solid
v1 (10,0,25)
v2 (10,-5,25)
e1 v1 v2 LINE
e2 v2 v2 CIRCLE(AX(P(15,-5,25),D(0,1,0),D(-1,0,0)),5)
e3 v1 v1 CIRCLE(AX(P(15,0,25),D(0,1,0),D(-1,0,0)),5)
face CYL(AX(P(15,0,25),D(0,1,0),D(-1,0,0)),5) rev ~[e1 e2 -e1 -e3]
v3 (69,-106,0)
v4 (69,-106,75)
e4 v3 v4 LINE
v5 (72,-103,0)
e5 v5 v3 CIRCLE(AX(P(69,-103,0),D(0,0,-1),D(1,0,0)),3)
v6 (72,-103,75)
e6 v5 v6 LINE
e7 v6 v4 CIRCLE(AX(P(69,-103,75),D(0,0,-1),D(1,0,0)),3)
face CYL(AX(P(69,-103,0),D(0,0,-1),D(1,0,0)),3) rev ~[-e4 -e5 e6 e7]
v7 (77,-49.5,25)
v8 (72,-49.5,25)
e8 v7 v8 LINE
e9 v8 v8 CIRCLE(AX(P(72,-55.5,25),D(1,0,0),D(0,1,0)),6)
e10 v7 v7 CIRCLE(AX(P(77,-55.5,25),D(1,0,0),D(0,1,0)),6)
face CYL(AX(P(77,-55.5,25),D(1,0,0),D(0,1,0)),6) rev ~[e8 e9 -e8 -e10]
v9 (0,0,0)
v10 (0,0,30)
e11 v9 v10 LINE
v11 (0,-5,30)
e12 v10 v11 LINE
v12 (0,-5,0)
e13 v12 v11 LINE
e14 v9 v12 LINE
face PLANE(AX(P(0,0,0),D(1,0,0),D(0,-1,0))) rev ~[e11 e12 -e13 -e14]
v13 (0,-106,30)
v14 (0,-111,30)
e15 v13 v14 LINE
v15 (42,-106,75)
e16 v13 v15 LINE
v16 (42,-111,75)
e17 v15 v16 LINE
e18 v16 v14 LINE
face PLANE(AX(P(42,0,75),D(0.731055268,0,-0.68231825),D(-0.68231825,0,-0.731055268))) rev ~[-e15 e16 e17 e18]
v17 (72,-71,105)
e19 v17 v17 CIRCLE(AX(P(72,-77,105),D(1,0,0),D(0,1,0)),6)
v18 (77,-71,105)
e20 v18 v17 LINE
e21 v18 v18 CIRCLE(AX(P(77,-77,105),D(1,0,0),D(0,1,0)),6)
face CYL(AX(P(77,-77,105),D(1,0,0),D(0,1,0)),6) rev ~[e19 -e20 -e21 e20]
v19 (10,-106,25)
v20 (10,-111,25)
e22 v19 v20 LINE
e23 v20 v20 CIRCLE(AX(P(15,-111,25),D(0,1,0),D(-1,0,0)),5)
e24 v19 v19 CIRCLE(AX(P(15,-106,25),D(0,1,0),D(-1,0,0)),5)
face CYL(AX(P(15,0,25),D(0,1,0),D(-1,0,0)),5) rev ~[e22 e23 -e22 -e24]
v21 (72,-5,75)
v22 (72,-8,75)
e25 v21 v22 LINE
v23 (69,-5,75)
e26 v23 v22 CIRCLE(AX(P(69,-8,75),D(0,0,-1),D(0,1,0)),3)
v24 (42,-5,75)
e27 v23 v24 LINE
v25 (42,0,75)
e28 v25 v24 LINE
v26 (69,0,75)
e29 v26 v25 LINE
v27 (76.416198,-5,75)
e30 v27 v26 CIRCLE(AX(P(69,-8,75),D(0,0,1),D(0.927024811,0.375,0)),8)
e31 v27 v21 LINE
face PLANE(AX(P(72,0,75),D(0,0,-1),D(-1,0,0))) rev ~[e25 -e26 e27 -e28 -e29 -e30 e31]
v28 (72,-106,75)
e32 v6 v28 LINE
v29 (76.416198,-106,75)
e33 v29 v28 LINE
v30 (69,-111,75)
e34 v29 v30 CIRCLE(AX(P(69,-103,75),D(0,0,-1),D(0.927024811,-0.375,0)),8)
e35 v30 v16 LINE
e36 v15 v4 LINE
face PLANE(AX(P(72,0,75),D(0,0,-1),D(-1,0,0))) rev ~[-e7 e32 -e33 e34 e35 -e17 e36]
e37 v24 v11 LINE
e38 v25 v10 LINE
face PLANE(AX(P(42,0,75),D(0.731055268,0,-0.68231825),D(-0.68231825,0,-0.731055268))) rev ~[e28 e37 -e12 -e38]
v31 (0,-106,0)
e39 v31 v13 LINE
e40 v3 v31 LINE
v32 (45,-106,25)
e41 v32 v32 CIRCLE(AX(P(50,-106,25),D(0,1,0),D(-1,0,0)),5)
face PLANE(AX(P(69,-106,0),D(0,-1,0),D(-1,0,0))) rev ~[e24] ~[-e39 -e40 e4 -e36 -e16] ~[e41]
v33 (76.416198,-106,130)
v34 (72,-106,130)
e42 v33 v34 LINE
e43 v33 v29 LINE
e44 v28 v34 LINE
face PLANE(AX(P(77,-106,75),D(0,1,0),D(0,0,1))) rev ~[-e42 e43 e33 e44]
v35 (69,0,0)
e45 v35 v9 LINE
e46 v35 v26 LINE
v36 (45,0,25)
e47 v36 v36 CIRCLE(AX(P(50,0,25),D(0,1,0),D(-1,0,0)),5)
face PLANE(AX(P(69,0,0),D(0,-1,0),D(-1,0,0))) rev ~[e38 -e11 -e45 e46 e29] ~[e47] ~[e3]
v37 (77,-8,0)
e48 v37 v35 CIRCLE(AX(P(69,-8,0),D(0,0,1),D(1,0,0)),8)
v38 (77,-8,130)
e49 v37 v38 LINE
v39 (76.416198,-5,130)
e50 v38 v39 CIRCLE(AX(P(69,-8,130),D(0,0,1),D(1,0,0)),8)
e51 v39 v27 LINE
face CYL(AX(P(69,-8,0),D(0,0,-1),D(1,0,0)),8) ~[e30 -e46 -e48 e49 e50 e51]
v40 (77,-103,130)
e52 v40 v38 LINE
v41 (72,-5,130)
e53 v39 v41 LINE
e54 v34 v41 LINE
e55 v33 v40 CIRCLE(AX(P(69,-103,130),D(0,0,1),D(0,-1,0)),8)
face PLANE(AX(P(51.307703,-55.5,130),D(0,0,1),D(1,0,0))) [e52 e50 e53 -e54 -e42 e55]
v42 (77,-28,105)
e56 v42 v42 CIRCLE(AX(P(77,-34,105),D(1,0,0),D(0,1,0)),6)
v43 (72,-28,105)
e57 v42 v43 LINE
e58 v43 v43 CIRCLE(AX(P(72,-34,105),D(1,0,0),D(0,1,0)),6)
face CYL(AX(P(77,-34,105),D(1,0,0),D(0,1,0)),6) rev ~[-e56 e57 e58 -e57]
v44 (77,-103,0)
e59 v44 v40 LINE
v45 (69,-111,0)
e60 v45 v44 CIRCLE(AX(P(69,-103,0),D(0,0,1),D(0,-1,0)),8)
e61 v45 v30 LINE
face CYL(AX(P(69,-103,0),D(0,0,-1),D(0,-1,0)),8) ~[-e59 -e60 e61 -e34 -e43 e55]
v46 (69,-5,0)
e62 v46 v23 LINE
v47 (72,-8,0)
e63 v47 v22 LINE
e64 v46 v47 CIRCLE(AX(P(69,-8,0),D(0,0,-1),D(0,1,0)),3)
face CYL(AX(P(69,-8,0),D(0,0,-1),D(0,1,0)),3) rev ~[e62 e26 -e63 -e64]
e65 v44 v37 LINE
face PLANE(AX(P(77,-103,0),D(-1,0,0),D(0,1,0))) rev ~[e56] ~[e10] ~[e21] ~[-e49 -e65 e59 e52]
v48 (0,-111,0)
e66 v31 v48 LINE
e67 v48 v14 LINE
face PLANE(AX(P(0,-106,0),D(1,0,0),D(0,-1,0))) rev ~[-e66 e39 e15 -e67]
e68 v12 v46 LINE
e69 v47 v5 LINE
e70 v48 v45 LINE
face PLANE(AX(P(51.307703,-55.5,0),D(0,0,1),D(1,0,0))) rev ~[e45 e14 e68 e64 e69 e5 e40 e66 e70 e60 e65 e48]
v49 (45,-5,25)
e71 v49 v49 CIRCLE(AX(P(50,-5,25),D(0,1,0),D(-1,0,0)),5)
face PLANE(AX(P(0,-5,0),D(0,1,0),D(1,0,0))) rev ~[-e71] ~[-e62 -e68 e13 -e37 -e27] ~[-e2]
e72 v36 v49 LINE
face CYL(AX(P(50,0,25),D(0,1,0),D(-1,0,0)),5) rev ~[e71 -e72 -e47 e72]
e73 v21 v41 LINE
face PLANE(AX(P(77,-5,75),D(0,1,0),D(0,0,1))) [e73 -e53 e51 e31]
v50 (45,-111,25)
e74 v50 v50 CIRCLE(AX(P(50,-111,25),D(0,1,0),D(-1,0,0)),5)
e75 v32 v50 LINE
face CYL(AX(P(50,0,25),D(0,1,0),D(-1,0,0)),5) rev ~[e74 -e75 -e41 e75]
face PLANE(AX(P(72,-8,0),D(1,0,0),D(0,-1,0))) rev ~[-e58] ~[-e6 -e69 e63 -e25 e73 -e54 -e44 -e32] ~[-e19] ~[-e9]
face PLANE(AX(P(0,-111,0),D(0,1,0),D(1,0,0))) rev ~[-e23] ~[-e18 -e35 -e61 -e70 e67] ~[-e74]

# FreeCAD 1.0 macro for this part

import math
import FreeCAD as App
import Part
import Sketcher
from FreeCAD import Vector


def add_polygon(sketch, points):
    """Adds a closed chain of lines whose ends are joined by coincident constraints."""
    first, n = sketch.GeometryCount, len(points)
    for a, b in zip(points, points[1:] + points[:1]):
        sketch.addGeometry(Part.LineSegment(App.Vector(*a, 0), App.Vector(*b, 0)), False)
    for i in range(n):
        sketch.addConstraint(Sketcher.Constraint("Coincident", first + i, 2, first + (i + 1) % n, 1))

doc = App.newDocument("Part")
body = doc.addObject("PartDesign::Body", "Body")

# Sketch on XY plane
sketch1 = body.newObject("Sketcher::SketchObject", "Sketch")
sketch1.AttachmentSupport = (doc.getObject("XY_Plane"), [""])
sketch1.MapMode = "FlatFace"
sketch1.addGeometry([
    Part.LineSegment(Vector(69, 0, 0), Vector(0, 0, 0)),  # 0
    Part.LineSegment(Vector(0, 0, 0), Vector(0, -5, 0)),  # 1
    Part.LineSegment(Vector(0, -5, 0), Vector(69, -5, 0)),  # 2
    Part.ArcOfCircle(Part.Circle(Vector(69, -8, 0), Vector(0, 0, 1), 3), math.radians(0), math.radians(90)),  # 3
    Part.LineSegment(Vector(72, -8, 0), Vector(72, -103, 0)),  # 4
    Part.ArcOfCircle(Part.Circle(Vector(69, -103, 0), Vector(0, 0, 1), 3), math.radians(-90), math.radians(0)),  # 5
    Part.LineSegment(Vector(69, -106, 0), Vector(0, -106, 0)),  # 6
    Part.LineSegment(Vector(0, -106, 0), Vector(0, -111, 0)),  # 7
    Part.LineSegment(Vector(0, -111, 0), Vector(69, -111, 0)),  # 8
    Part.ArcOfCircle(Part.Circle(Vector(69, -103, 0), Vector(0, 0, 1), 8), math.radians(-90), math.radians(0)),  # 9
    Part.LineSegment(Vector(77, -103, 0), Vector(77, -8, 0)),  # 10
    Part.ArcOfCircle(Part.Circle(Vector(69, -8, 0), Vector(0, 0, 1), 8), math.radians(0), math.radians(90)),  # 11
], False)
sketch1.addConstraint([
    Sketcher.Constraint("Coincident", 0, 2, 1, 1),
    Sketcher.Constraint("Coincident", 1, 2, 2, 1),
    Sketcher.Constraint("Tangent", 2, 2, 3, 2),
    Sketcher.Constraint("Tangent", 3, 1, 4, 1),
    Sketcher.Constraint("Tangent", 4, 2, 5, 2),
    Sketcher.Constraint("Tangent", 5, 1, 6, 1),
    Sketcher.Constraint("Coincident", 6, 2, 7, 1),
    Sketcher.Constraint("Coincident", 7, 2, 8, 1),
    Sketcher.Constraint("Tangent", 8, 2, 9, 1),
    Sketcher.Constraint("Tangent", 9, 2, 10, 1),
    Sketcher.Constraint("Tangent", 10, 2, 11, 1),
    Sketcher.Constraint("Tangent", 11, 2, 0, 1),
    Sketcher.Constraint("Horizontal", 0),
    Sketcher.Constraint("Vertical", 1),
    Sketcher.Constraint("Horizontal", 2),
    Sketcher.Constraint("Vertical", 4),
    Sketcher.Constraint("Horizontal", 6),
    Sketcher.Constraint("Vertical", 7),
    Sketcher.Constraint("Horizontal", 8),
    Sketcher.Constraint("Vertical", 10),
    Sketcher.Constraint("Coincident", 0, 2, -1, 1),
    Sketcher.Constraint("Coincident", 9, 3, 5, 3),
    Sketcher.Constraint("Coincident", 11, 3, 3, 3),
    Sketcher.Constraint("Equal", 3, 5),
    Sketcher.Constraint("PointOnObject", 6, 2, -2),
    Sketcher.Constraint("Radius", 3, 3.0),
    Sketcher.Constraint("Radius", 9, 8.0),
    Sketcher.Constraint("DistanceX", 0, 2, 0, 1, 69.0),
    Sketcher.Constraint("DistanceY", 4, 2, 4, 1, 95.0),
])
pad1 = body.newObject("PartDesign::Pad", "Pad")
pad1.Profile = sketch1
pad1.Length = 130

# Sketch on XZ plane
sketch2 = body.newObject("Sketcher::SketchObject", "Sketch001")
sketch2.AttachmentSupport = (doc.getObject("XZ_Plane"), [""])
sketch2.MapMode = "FlatFace"
add_polygon(sketch2, [(0, 75), (0, 130), (72, 130), (72, 75)])  # lines 0-3
sketch2.addConstraint([
    Sketcher.Constraint("Vertical", 0),
    Sketcher.Constraint("Horizontal", 1),
    Sketcher.Constraint("Vertical", 2),
    Sketcher.Constraint("Horizontal", 3),
    Sketcher.Constraint("PointOnObject", 0, 2, -2),
    Sketcher.Constraint("DistanceX", 1, 1, 1, 2, 72.0),
    Sketcher.Constraint("DistanceY", 0, 1, 0, 2, 55.0),
    Sketcher.Constraint("DistanceY", -1, 1, 0, 2, 130.0),
])
pocket1 = body.newObject("PartDesign::Pocket", "Pocket")
pocket1.Profile = sketch2
pocket1.Length = 121
pocket1.Reversed = True

# Sketch on XZ plane
sketch3 = body.newObject("Sketcher::SketchObject", "Sketch002")
sketch3.AttachmentSupport = (doc.getObject("XZ_Plane"), [""])
sketch3.MapMode = "FlatFace"
add_polygon(sketch3, [(0, 30), (0, 75), (42, 75)])  # lines 0-2
sketch3.addConstraint([
    Sketcher.Constraint("Vertical", 0),
    Sketcher.Constraint("Horizontal", 1),
    Sketcher.Constraint("PointOnObject", 0, 2, -2),
    Sketcher.Constraint("DistanceX", 1, 1, 1, 2, 42.0),
    Sketcher.Constraint("DistanceY", 0, 1, 0, 2, 45.0),
    Sketcher.Constraint("DistanceY", -1, 1, 0, 2, 75.0),
])
pocket2 = body.newObject("PartDesign::Pocket", "Pocket001")
pocket2.Profile = sketch3
pocket2.Length = 116
pocket2.Reversed = True

# Sketch on YZ plane
sketch4 = body.newObject("Sketcher::SketchObject", "Sketch003")
sketch4.AttachmentSupport = (doc.getObject("YZ_Plane"), [""])
sketch4.MapMode = "FlatFace"
sketch4.AttachmentOffset = App.Placement(Vector(0, 0, 77), App.Rotation())
add_polygon(sketch4, [(-5, 130), (-5, 75), (0, 75), (0, 130)])  # lines 0-3
sketch4.addConstraint([
    Sketcher.Constraint("Vertical", 0),
    Sketcher.Constraint("Horizontal", 1),
    Sketcher.Constraint("Vertical", 2),
    Sketcher.Constraint("Horizontal", 3),
    Sketcher.Constraint("PointOnObject", 1, 2, -2),
    Sketcher.Constraint("DistanceX", 1, 1, 1, 2, 5.0),
    Sketcher.Constraint("DistanceY", 0, 2, 0, 1, 55.0),
    Sketcher.Constraint("DistanceY", -1, 1, 0, 2, 75.0),
])
pocket3 = body.newObject("PartDesign::Pocket", "Pocket002")
pocket3.Profile = sketch4
pocket3.Length = 37.8

# Sketch on YZ plane
sketch5 = body.newObject("Sketcher::SketchObject", "Sketch004")
sketch5.AttachmentSupport = (doc.getObject("YZ_Plane"), [""])
sketch5.MapMode = "FlatFace"
sketch5.AttachmentOffset = App.Placement(Vector(0, 0, 77), App.Rotation())
add_polygon(sketch5, [(-111, 130), (-111, 75), (-106, 75), (-106, 130)])  # lines 0-3
sketch5.addConstraint([
    Sketcher.Constraint("Vertical", 0),
    Sketcher.Constraint("Horizontal", 1),
    Sketcher.Constraint("Vertical", 2),
    Sketcher.Constraint("Horizontal", 3),
    Sketcher.Constraint("DistanceX", 1, 1, 1, 2, 5.0),
    Sketcher.Constraint("DistanceY", 0, 2, 0, 1, 55.0),
    Sketcher.Constraint("DistanceX", 0, 2, -1, 1, 111.0),
    Sketcher.Constraint("DistanceY", -1, 1, 0, 2, 75.0),
])
pocket4 = body.newObject("PartDesign::Pocket", "Pocket003")
pocket4.Profile = sketch5
pocket4.Length = 63

# Sketch on XZ plane
sketch6 = body.newObject("Sketcher::SketchObject", "Sketch005")
sketch6.AttachmentSupport = (doc.getObject("XZ_Plane"), [""])
sketch6.MapMode = "FlatFace"
sketch6.addGeometry([
    Part.Circle(Vector(15, 25, 0), Vector(0, 0, 1), 5),
    Part.Circle(Vector(50, 25, 0), Vector(0, 0, 1), 5),
], False)
sketch6.addConstraint([
    Sketcher.Constraint("Equal", 0, 1),
    Sketcher.Constraint("Horizontal", 0, 3, 1, 3),
    Sketcher.Constraint("Diameter", 0, 10.0),
    Sketcher.Constraint("DistanceX", -1, 1, 0, 3, 15.0),
    Sketcher.Constraint("DistanceY", -1, 1, 0, 3, 25.0),
    Sketcher.Constraint("DistanceX", -1, 1, 1, 3, 50.0),
])
pocket5 = body.newObject("PartDesign::Pocket", "Pocket004")
pocket5.Profile = sketch6
pocket5.Length = 135
pocket5.Reversed = True

# Sketch on YZ plane
sketch7 = body.newObject("Sketcher::SketchObject", "Sketch006")
sketch7.AttachmentSupport = (doc.getObject("YZ_Plane"), [""])
sketch7.MapMode = "FlatFace"
sketch7.AttachmentOffset = App.Placement(Vector(0, 0, 77), App.Rotation())
sketch7.addGeometry([
    Part.Circle(Vector(-56, 25, 0), Vector(0, 0, 1), 6),
    Part.Circle(Vector(-77, 105, 0), Vector(0, 0, 1), 6),
    Part.Circle(Vector(-34, 105, 0), Vector(0, 0, 1), 6),
], False)
sketch7.addConstraint([
    Sketcher.Constraint("Equal", 0, 1),
    Sketcher.Constraint("Equal", 1, 2),
    Sketcher.Constraint("Horizontal", 1, 3, 2, 3),
    Sketcher.Constraint("Diameter", 0, 12.0),
    Sketcher.Constraint("DistanceY", -1, 1, 0, 3, 25.0),
    Sketcher.Constraint("DistanceX", 1, 3, -1, 1, 77.0),
    Sketcher.Constraint("DistanceY", -1, 1, 1, 3, 105.0),
    Sketcher.Constraint("DistanceX", 2, 3, -1, 1, 34.0),
    Sketcher.Constraint("DistanceX", 0, 3, -1, 1, 55.5),
])
pocket6 = body.newObject("PartDesign::Pocket", "Pocket005")
pocket6.Profile = sketch7
pocket6.Length = 25

doc.recompute()
